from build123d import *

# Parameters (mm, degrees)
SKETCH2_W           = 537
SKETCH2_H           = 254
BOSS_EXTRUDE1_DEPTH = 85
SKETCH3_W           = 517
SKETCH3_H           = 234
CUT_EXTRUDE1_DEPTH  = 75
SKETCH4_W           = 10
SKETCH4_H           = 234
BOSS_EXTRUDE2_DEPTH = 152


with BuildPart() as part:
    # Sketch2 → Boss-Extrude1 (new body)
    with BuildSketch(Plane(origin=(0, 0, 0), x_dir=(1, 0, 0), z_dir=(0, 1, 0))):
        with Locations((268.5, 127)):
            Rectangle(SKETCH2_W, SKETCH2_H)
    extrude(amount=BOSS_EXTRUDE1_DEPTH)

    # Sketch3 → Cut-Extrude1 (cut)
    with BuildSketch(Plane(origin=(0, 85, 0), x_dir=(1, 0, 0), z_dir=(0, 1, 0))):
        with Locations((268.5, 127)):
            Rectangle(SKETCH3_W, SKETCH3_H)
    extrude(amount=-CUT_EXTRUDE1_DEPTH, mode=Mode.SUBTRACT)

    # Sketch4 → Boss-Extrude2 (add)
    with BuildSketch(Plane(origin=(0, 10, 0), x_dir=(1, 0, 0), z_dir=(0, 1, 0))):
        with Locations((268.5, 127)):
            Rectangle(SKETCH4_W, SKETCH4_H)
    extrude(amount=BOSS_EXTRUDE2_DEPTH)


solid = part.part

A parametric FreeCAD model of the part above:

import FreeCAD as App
import Part
import Sketcher

V = App.Vector


def add_polygon(sketch, points):
    """Adds a closed chain of lines whose ends are joined by coincident constraints."""
    first, n = sketch.GeometryCount, len(points)
    for a, b in zip(points, points[1:] + points[:1]):
        sketch.addGeometry(Part.LineSegment(App.Vector(*a, 0), App.Vector(*b, 0)), False)
    for i in range(n):
        sketch.addConstraint(Sketcher.Constraint("Coincident", first + i, 2, first + (i + 1) % n, 1))

doc = App.newDocument("Part")
body = doc.addObject("PartDesign::Body", "Body")

# Sketch on XZ plane
sketch1 = body.newObject("Sketcher::SketchObject", "Sketch")
sketch1.AttachmentSupport = (doc.getObject("XZ_Plane"), [""])
sketch1.MapMode = "FlatFace"
add_polygon(sketch1, [(0, -254), (0, 0), (537, 0), (537, -254)])  # lines 0-3
sketch1.addConstraint([
    Sketcher.Constraint("Vertical", 0),
    Sketcher.Constraint("Horizontal", 1),
    Sketcher.Constraint("Vertical", 2),
    Sketcher.Constraint("Horizontal", 3),
    Sketcher.Constraint("Coincident", 0, 2, -1, 1),
    Sketcher.Constraint("DistanceX", 1, 1, 1, 2, 537.0),
    Sketcher.Constraint("DistanceY", 0, 1, 0, 2, 254.0),
])
pad1 = body.newObject("PartDesign::Pad", "Pad")
pad1.Profile = sketch1
pad1.Length = 85
pad1.Reversed = True

# Sketch on XZ plane
sketch2 = body.newObject("Sketcher::SketchObject", "Sketch001")
sketch2.AttachmentSupport = (doc.getObject("XZ_Plane"), [""])
sketch2.MapMode = "FlatFace"
sketch2.AttachmentOffset = App.Placement(V(0, 0, -85), App.Rotation())
add_polygon(sketch2, [(10, -244), (10, -10), (527, -10), (527, -244)])  # lines 0-3
sketch2.addConstraint([
    Sketcher.Constraint("Vertical", 0),
    Sketcher.Constraint("Horizontal", 1),
    Sketcher.Constraint("Vertical", 2),
    Sketcher.Constraint("Horizontal", 3),
    Sketcher.Constraint("DistanceX", 1, 1, 1, 2, 517.0),
    Sketcher.Constraint("DistanceY", 0, 1, 0, 2, 234.0),
    Sketcher.Constraint("DistanceX", -1, 1, 0, 2, 10.0),
    Sketcher.Constraint("DistanceY", 0, 2, -1, 1, 10.0),
])
pocket1 = body.newObject("PartDesign::Pocket", "Pocket")
pocket1.Profile = sketch2
pocket1.Length = 75
pocket1.Reversed = True

# Sketch on XZ plane
sketch3 = body.newObject("Sketcher::SketchObject", "Sketch002")
sketch3.AttachmentSupport = (doc.getObject("XZ_Plane"), [""])
sketch3.MapMode = "FlatFace"
sketch3.AttachmentOffset = App.Placement(V(0, 0, -10), App.Rotation())
add_polygon(sketch3, [(264, -244), (264, -10), (274, -10), (274, -244)])  # lines 0-3
sketch3.addConstraint([
    Sketcher.Constraint("Vertical", 0),
    Sketcher.Constraint("Horizontal", 1),
    Sketcher.Constraint("Vertical", 2),
    Sketcher.Constraint("Horizontal", 3),
    Sketcher.Constraint("DistanceX", 1, 1, 1, 2, 10.0),
    Sketcher.Constraint("DistanceY", 0, 1, 0, 2, 234.0),
    Sketcher.Constraint("DistanceY", 0, 2, -1, 1, 10.0),
    Sketcher.Constraint("DistanceX", -1, 1, 0, 2, 263.5),
])
pad2 = body.newObject("PartDesign::Pad", "Pad001")
pad2.Profile = sketch3
pad2.Length = 152
pad2.Reversed = True

doc.recompute()
